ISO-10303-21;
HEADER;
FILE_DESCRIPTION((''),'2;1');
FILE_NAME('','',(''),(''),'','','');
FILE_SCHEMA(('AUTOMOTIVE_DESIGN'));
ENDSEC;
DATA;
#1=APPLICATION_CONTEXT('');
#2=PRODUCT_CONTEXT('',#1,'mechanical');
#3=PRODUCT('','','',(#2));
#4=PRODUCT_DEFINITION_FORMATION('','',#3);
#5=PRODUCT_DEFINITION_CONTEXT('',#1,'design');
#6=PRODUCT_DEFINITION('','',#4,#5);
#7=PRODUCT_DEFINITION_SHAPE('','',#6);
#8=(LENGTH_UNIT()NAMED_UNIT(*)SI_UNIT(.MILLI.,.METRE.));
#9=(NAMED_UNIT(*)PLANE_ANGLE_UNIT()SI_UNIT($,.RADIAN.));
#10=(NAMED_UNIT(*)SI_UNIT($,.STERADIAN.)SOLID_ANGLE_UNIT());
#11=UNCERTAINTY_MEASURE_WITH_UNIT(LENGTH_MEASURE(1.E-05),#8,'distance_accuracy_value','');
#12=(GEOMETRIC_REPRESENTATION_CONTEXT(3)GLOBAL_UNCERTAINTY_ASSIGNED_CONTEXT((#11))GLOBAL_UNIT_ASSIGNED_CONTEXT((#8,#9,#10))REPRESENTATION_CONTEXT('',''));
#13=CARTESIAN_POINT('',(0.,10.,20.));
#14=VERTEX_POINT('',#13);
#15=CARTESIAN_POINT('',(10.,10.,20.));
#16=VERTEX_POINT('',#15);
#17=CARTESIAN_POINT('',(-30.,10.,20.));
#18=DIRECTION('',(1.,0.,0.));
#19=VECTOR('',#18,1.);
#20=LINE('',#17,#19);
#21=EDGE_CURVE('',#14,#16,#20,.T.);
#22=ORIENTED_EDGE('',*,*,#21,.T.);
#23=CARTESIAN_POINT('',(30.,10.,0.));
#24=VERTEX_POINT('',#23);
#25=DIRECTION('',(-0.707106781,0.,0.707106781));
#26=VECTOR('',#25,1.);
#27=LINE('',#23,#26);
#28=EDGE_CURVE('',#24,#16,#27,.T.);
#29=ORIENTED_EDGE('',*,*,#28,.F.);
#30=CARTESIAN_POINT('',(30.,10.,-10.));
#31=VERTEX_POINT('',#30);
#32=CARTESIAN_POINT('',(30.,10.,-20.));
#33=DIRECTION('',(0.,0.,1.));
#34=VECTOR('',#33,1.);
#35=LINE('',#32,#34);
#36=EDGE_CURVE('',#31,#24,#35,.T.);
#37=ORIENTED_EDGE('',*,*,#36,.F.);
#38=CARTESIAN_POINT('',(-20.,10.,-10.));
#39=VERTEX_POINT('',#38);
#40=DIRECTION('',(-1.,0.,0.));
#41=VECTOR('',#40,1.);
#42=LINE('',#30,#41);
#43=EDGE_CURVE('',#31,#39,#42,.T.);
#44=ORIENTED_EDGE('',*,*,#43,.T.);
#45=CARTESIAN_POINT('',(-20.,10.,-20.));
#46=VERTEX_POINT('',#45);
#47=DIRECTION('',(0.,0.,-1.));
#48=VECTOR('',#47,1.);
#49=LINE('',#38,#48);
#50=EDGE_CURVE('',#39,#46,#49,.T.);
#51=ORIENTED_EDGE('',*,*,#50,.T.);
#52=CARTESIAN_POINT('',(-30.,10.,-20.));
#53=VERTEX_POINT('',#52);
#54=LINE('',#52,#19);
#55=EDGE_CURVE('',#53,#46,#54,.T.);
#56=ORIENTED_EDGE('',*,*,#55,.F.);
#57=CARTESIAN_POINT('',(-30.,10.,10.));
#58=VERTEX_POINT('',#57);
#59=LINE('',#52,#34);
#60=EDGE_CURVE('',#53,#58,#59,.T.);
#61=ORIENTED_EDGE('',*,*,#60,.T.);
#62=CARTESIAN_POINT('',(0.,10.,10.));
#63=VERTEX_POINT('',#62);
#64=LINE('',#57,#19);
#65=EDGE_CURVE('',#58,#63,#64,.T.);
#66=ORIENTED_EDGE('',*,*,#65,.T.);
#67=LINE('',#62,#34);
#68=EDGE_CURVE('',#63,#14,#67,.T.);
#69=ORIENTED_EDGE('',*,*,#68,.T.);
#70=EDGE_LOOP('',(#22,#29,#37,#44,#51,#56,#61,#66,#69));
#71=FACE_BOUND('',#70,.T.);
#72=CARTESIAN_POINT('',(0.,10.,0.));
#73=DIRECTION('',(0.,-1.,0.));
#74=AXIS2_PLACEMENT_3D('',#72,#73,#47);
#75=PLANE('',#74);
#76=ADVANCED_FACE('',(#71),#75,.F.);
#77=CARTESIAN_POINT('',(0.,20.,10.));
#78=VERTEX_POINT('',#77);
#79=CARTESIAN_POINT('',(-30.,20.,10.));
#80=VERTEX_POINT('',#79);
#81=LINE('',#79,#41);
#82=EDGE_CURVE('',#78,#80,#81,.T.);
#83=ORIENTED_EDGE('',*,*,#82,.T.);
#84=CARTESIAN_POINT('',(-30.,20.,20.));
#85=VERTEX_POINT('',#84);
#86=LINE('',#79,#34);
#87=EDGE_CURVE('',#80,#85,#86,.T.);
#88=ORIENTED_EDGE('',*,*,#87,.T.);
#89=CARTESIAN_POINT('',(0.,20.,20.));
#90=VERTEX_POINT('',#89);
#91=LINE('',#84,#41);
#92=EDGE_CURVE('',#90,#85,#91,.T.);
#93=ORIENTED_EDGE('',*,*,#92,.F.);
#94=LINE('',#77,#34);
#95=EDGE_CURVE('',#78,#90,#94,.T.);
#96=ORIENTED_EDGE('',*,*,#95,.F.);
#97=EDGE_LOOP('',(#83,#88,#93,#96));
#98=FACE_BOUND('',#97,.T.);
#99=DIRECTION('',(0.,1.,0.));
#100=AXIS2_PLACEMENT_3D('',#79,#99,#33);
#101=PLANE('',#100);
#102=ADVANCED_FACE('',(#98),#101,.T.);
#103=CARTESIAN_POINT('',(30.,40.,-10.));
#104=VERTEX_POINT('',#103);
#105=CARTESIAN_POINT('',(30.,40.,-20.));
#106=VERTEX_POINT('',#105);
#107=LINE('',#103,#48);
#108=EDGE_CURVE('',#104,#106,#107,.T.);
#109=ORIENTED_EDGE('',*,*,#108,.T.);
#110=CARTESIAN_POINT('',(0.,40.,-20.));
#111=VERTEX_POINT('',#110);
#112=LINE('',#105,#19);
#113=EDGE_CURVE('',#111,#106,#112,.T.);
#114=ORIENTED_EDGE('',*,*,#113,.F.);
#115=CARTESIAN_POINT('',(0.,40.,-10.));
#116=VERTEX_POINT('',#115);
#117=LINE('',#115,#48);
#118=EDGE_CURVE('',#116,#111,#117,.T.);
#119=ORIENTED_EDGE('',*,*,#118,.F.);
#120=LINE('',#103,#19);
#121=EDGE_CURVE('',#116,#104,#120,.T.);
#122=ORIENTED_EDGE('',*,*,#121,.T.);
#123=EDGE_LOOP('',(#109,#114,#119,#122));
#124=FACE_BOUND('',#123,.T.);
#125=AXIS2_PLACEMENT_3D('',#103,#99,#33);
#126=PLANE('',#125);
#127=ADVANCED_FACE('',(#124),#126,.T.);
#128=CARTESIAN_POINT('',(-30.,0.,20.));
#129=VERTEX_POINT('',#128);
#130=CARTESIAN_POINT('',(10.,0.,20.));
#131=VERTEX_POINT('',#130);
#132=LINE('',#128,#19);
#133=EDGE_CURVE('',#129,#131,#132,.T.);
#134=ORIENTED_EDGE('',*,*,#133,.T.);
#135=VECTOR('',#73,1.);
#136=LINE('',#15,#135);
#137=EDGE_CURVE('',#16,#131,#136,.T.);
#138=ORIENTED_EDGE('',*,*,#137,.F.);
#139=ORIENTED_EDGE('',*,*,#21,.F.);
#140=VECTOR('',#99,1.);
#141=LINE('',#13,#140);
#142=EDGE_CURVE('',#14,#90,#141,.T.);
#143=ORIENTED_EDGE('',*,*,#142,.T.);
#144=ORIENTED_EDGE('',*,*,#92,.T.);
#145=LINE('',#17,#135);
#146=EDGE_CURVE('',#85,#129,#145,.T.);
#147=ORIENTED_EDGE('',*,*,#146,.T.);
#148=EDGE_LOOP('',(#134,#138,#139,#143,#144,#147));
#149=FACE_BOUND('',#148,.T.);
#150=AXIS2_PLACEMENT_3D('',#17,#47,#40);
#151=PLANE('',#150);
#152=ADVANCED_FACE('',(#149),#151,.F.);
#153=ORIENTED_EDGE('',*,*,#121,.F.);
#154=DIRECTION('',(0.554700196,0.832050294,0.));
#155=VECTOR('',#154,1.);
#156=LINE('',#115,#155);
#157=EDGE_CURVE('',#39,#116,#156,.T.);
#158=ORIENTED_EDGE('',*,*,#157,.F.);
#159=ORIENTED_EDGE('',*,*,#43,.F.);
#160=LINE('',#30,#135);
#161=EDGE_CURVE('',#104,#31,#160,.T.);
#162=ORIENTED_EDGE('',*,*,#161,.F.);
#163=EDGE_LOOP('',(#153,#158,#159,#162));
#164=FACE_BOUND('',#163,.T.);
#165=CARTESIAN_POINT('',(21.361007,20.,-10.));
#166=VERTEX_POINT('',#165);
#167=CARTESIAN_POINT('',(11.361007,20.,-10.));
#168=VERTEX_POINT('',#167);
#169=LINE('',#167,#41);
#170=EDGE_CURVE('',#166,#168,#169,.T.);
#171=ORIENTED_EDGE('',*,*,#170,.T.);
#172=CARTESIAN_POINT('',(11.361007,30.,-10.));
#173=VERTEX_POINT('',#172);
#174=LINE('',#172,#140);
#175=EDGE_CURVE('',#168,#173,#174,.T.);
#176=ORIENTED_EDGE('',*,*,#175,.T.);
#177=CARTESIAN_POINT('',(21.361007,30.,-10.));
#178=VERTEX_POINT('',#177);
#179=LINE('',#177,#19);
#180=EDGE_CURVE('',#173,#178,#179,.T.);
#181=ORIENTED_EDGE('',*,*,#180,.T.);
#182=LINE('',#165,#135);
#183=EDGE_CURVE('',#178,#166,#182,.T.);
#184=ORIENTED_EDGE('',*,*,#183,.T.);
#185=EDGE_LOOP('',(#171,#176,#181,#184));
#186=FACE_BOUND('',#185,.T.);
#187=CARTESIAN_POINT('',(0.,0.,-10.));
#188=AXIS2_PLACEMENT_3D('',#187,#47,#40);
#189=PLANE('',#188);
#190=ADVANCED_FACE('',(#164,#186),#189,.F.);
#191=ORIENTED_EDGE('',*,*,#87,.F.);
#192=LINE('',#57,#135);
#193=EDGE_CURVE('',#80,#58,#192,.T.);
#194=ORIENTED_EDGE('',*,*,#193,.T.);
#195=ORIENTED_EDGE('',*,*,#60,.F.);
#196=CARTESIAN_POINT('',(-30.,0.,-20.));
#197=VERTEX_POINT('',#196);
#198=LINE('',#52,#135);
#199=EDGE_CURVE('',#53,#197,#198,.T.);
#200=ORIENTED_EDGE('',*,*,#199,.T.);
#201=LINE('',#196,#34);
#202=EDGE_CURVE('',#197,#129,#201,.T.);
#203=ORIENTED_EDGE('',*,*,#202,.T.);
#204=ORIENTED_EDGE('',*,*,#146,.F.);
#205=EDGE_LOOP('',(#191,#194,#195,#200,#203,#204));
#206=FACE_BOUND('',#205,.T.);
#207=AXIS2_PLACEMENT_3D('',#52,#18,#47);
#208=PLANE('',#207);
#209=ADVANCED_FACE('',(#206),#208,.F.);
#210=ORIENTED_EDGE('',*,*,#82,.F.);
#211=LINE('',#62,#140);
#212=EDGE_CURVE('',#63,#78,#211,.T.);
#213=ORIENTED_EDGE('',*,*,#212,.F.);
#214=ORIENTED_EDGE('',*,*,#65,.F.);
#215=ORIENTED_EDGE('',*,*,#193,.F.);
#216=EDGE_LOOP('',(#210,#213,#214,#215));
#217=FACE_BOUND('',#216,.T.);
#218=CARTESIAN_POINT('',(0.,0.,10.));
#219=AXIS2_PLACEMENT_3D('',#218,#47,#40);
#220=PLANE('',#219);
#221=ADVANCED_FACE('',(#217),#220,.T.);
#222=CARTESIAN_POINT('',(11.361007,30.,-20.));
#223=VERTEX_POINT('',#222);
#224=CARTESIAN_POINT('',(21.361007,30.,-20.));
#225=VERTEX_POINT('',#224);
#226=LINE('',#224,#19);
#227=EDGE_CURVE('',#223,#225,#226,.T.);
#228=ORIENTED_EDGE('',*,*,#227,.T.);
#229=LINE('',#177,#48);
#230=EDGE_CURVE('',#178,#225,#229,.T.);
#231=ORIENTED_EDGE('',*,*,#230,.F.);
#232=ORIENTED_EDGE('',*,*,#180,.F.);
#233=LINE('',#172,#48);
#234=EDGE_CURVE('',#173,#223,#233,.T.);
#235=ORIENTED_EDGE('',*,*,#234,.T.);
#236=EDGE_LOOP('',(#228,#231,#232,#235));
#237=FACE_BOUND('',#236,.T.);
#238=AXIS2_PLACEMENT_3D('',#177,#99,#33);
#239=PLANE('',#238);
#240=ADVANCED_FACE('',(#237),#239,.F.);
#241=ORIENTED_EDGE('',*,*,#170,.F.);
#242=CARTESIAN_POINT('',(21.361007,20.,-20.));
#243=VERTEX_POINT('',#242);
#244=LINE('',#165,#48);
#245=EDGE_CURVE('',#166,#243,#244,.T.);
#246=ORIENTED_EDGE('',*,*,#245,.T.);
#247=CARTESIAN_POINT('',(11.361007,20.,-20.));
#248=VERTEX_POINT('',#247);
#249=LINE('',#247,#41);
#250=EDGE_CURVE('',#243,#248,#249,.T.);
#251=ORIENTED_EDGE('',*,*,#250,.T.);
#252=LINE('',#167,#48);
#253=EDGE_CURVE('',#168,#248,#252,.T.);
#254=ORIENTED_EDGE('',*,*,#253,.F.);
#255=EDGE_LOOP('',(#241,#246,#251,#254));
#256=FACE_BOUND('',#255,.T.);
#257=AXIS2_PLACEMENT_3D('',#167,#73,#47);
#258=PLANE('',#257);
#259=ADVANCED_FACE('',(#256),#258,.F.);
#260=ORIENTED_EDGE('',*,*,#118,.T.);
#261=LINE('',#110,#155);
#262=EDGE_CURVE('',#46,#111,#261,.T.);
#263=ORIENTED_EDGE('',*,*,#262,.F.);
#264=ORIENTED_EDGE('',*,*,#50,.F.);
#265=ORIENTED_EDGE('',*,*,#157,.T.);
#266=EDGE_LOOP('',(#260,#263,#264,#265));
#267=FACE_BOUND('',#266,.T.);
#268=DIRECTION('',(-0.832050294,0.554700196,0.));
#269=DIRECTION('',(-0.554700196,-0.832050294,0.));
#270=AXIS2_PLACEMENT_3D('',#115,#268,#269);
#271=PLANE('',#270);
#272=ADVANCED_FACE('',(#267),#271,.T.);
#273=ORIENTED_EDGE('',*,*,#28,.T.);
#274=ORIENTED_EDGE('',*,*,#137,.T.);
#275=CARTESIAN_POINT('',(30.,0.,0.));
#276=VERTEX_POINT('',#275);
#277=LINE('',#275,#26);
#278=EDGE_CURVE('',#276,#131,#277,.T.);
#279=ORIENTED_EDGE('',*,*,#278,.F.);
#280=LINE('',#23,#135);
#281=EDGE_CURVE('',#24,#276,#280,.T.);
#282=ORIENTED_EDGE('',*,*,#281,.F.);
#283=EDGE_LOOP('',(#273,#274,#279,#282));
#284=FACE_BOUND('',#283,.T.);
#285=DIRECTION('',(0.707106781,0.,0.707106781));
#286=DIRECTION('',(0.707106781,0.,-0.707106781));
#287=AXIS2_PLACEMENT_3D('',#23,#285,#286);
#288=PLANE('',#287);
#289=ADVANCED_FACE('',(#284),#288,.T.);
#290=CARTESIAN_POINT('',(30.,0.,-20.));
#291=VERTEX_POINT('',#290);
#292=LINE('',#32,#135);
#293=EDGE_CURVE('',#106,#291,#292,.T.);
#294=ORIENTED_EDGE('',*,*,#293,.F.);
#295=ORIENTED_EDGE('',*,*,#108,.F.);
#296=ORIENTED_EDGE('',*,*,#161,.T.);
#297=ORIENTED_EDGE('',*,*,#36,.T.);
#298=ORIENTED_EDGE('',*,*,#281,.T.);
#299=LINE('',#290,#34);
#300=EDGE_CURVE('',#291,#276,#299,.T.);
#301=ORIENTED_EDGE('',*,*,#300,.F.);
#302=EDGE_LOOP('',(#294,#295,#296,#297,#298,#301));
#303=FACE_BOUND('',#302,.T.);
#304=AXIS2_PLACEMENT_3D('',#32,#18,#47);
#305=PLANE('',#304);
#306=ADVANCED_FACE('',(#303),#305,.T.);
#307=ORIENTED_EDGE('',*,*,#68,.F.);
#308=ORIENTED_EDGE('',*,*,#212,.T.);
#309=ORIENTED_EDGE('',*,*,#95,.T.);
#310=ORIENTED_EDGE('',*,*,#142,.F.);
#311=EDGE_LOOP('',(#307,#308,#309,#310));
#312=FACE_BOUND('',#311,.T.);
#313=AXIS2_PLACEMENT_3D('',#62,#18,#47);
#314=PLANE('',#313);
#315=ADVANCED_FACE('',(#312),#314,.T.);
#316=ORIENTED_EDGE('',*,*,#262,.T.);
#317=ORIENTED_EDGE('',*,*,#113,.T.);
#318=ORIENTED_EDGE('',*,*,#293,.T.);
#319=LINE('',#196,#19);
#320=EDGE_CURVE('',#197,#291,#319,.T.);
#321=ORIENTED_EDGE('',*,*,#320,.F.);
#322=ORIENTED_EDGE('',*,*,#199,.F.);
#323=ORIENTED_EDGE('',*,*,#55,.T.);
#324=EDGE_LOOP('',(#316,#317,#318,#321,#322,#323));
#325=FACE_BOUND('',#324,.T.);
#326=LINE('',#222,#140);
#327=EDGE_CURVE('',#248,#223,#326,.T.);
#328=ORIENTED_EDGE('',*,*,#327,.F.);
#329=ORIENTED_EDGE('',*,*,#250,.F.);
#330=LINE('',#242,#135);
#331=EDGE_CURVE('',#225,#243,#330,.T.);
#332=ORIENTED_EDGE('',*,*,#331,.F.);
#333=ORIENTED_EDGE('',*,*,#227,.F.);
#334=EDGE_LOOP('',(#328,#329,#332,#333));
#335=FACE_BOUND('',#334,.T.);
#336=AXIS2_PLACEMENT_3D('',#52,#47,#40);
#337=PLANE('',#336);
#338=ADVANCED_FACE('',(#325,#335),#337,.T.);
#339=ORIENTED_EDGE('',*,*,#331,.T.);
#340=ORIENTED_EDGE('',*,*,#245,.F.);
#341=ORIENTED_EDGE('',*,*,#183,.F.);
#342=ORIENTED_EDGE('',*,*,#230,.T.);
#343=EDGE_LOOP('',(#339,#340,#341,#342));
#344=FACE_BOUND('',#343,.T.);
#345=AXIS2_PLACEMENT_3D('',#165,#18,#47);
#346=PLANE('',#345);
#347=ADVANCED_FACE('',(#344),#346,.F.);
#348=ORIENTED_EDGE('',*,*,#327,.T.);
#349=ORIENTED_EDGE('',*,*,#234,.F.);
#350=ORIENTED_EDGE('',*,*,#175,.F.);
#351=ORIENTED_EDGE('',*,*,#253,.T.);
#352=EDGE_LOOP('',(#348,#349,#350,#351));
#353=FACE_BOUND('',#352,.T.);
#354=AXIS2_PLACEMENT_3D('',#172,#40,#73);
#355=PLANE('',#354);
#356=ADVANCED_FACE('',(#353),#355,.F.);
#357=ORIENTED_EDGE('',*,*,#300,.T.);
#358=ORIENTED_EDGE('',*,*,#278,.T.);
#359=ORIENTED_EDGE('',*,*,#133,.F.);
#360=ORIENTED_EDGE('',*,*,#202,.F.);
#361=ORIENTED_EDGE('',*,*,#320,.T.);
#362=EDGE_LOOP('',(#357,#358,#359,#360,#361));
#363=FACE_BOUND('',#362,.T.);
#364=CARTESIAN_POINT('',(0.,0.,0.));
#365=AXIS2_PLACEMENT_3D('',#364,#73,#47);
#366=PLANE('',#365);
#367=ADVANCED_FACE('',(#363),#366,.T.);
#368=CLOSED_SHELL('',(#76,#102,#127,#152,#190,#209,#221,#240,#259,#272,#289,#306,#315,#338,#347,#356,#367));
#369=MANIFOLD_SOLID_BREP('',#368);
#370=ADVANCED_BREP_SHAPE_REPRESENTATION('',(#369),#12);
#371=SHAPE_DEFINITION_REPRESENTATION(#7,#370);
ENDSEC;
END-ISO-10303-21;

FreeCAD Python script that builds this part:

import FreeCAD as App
import Part
import Sketcher
from FreeCAD import Vector
Q = App.Units.Quantity


def add_polygon(sketch, points):
    """Adds a closed chain of lines whose ends are joined by coincident constraints."""
    first, n = sketch.GeometryCount, len(points)
    for a, b in zip(points, points[1:] + points[:1]):
        sketch.addGeometry(Part.LineSegment(App.Vector(*a, 0), App.Vector(*b, 0)), False)
    for i in range(n):
        sketch.addConstraint(Sketcher.Constraint("Coincident", first + i, 2, first + (i + 1) % n, 1))

doc = App.newDocument("Part")
body = doc.addObject("PartDesign::Body", "Body")

sketch1 = body.newObject("Sketcher::SketchObject", "Sketch")
sketch1.AttachmentSupport = (doc.getObject("XZ_Plane"), [""])
sketch1.MapMode = "FlatFace"
add_polygon(sketch1, [(10, 20), (30, 0), (30, -20), (-30, -20), (-30, 20)])
sketch1.addConstraint([
    Sketcher.Constraint("Vertical", 1),
    Sketcher.Constraint("Horizontal", 2),
    Sketcher.Constraint("Vertical", 3),
    Sketcher.Constraint("Horizontal", 4),
    Sketcher.Constraint("Symmetric", 1, 2, 3, 2, -1, 1),
    Sketcher.Constraint("PointOnObject", 0, 2, -1),
    Sketcher.Constraint("Equal", 4, 3),
    Sketcher.Constraint("DistanceX", 2, 2, 2, 1, Q("60 mm")),
    Sketcher.Constraint("DistanceX", 4, 1, 4, 2, Q("40 mm")),
])
pad1 = body.newObject("PartDesign::Pad", "Pad")
pad1.Profile = sketch1
pad1.Length = 10
pad1.Reversed = True

sketch2 = body.newObject("Sketcher::SketchObject", "Sketch001")
sketch2.AttachmentSupport = (doc.getObject("XY_Plane"), [""])
sketch2.MapMode = "FlatFace"
sketch2.AttachmentOffset = App.Placement(Vector(0, 0, 20), App.Rotation())
add_polygon(sketch2, [(-30, 20), (-30, 10), (0, 10), (0, 20)])
sketch2.addConstraint([
    Sketcher.Constraint("Vertical", 0),
    Sketcher.Constraint("Horizontal", 1),
    Sketcher.Constraint("Vertical", 2),
    Sketcher.Constraint("Horizontal", 3),
    Sketcher.Constraint("PointOnObject", 1, 2, -2),
    Sketcher.Constraint("DistanceX", 1, 1, 1, 2, Q("30 mm")),
    Sketcher.Constraint("DistanceY", 0, 2, 0, 1, Q("10 mm")),
    Sketcher.Constraint("DistanceY", -1, 1, 0, 2, Q("10 mm")),
])
pad2 = body.newObject("PartDesign::Pad", "Pad001")
pad2.Profile = sketch2
pad2.Length = 10
pad2.Reversed = True

sketch3 = body.newObject("Sketcher::SketchObject", "Sketch002")
sketch3.AttachmentSupport = (doc.getObject("XY_Plane"), [""])
sketch3.MapMode = "FlatFace"
sketch3.AttachmentOffset = App.Placement(Vector(0, 0, -20), App.Rotation())
add_polygon(sketch3, [(30, 40), (30, 10), (-20, 10), (0, 40)])
add_polygon(sketch3, [(21.361007, 20), (21.361007, 30), (11.361007, 30), (11.361007, 20)])
sketch3.addConstraint([
    Sketcher.Constraint("Vertical", 0),
    Sketcher.Constraint("Horizontal", 1),
    Sketcher.Constraint("Horizontal", 3),
    Sketcher.Constraint("Vertical", 4),
    Sketcher.Constraint("Horizontal", 5),
    Sketcher.Constraint("Vertical", 6),
    Sketcher.Constraint("Horizontal", 7),
    Sketcher.Constraint("PointOnObject", 2, 2, -2),
    Sketcher.Constraint("Equal", 3, 0),
    Sketcher.Constraint("Equal", 7, 4),
    Sketcher.Constraint("DistanceX", 1, 2, 1, 1, Q("50 mm")),
    Sketcher.Constraint("DistanceX", 3, 1, 3, 2, Q("30 mm")),
    Sketcher.Constraint("DistanceX", 5, 2, 5, 1, Q("10 mm")),
    Sketcher.Constraint("DistanceY", -1, 1, 0, 2, Q("10 mm")),
    Sketcher.Constraint("DistanceY", -1, 1, 4, 2, Q("30 mm")),
    Sketcher.Constraint("DistanceX", -1, 1, 4, 2, Q("21.361007 mm")),
])
pad3 = body.newObject("PartDesign::Pad", "Pad002")
pad3.Profile = sketch3
pad3.Length = 10

doc.recompute()
